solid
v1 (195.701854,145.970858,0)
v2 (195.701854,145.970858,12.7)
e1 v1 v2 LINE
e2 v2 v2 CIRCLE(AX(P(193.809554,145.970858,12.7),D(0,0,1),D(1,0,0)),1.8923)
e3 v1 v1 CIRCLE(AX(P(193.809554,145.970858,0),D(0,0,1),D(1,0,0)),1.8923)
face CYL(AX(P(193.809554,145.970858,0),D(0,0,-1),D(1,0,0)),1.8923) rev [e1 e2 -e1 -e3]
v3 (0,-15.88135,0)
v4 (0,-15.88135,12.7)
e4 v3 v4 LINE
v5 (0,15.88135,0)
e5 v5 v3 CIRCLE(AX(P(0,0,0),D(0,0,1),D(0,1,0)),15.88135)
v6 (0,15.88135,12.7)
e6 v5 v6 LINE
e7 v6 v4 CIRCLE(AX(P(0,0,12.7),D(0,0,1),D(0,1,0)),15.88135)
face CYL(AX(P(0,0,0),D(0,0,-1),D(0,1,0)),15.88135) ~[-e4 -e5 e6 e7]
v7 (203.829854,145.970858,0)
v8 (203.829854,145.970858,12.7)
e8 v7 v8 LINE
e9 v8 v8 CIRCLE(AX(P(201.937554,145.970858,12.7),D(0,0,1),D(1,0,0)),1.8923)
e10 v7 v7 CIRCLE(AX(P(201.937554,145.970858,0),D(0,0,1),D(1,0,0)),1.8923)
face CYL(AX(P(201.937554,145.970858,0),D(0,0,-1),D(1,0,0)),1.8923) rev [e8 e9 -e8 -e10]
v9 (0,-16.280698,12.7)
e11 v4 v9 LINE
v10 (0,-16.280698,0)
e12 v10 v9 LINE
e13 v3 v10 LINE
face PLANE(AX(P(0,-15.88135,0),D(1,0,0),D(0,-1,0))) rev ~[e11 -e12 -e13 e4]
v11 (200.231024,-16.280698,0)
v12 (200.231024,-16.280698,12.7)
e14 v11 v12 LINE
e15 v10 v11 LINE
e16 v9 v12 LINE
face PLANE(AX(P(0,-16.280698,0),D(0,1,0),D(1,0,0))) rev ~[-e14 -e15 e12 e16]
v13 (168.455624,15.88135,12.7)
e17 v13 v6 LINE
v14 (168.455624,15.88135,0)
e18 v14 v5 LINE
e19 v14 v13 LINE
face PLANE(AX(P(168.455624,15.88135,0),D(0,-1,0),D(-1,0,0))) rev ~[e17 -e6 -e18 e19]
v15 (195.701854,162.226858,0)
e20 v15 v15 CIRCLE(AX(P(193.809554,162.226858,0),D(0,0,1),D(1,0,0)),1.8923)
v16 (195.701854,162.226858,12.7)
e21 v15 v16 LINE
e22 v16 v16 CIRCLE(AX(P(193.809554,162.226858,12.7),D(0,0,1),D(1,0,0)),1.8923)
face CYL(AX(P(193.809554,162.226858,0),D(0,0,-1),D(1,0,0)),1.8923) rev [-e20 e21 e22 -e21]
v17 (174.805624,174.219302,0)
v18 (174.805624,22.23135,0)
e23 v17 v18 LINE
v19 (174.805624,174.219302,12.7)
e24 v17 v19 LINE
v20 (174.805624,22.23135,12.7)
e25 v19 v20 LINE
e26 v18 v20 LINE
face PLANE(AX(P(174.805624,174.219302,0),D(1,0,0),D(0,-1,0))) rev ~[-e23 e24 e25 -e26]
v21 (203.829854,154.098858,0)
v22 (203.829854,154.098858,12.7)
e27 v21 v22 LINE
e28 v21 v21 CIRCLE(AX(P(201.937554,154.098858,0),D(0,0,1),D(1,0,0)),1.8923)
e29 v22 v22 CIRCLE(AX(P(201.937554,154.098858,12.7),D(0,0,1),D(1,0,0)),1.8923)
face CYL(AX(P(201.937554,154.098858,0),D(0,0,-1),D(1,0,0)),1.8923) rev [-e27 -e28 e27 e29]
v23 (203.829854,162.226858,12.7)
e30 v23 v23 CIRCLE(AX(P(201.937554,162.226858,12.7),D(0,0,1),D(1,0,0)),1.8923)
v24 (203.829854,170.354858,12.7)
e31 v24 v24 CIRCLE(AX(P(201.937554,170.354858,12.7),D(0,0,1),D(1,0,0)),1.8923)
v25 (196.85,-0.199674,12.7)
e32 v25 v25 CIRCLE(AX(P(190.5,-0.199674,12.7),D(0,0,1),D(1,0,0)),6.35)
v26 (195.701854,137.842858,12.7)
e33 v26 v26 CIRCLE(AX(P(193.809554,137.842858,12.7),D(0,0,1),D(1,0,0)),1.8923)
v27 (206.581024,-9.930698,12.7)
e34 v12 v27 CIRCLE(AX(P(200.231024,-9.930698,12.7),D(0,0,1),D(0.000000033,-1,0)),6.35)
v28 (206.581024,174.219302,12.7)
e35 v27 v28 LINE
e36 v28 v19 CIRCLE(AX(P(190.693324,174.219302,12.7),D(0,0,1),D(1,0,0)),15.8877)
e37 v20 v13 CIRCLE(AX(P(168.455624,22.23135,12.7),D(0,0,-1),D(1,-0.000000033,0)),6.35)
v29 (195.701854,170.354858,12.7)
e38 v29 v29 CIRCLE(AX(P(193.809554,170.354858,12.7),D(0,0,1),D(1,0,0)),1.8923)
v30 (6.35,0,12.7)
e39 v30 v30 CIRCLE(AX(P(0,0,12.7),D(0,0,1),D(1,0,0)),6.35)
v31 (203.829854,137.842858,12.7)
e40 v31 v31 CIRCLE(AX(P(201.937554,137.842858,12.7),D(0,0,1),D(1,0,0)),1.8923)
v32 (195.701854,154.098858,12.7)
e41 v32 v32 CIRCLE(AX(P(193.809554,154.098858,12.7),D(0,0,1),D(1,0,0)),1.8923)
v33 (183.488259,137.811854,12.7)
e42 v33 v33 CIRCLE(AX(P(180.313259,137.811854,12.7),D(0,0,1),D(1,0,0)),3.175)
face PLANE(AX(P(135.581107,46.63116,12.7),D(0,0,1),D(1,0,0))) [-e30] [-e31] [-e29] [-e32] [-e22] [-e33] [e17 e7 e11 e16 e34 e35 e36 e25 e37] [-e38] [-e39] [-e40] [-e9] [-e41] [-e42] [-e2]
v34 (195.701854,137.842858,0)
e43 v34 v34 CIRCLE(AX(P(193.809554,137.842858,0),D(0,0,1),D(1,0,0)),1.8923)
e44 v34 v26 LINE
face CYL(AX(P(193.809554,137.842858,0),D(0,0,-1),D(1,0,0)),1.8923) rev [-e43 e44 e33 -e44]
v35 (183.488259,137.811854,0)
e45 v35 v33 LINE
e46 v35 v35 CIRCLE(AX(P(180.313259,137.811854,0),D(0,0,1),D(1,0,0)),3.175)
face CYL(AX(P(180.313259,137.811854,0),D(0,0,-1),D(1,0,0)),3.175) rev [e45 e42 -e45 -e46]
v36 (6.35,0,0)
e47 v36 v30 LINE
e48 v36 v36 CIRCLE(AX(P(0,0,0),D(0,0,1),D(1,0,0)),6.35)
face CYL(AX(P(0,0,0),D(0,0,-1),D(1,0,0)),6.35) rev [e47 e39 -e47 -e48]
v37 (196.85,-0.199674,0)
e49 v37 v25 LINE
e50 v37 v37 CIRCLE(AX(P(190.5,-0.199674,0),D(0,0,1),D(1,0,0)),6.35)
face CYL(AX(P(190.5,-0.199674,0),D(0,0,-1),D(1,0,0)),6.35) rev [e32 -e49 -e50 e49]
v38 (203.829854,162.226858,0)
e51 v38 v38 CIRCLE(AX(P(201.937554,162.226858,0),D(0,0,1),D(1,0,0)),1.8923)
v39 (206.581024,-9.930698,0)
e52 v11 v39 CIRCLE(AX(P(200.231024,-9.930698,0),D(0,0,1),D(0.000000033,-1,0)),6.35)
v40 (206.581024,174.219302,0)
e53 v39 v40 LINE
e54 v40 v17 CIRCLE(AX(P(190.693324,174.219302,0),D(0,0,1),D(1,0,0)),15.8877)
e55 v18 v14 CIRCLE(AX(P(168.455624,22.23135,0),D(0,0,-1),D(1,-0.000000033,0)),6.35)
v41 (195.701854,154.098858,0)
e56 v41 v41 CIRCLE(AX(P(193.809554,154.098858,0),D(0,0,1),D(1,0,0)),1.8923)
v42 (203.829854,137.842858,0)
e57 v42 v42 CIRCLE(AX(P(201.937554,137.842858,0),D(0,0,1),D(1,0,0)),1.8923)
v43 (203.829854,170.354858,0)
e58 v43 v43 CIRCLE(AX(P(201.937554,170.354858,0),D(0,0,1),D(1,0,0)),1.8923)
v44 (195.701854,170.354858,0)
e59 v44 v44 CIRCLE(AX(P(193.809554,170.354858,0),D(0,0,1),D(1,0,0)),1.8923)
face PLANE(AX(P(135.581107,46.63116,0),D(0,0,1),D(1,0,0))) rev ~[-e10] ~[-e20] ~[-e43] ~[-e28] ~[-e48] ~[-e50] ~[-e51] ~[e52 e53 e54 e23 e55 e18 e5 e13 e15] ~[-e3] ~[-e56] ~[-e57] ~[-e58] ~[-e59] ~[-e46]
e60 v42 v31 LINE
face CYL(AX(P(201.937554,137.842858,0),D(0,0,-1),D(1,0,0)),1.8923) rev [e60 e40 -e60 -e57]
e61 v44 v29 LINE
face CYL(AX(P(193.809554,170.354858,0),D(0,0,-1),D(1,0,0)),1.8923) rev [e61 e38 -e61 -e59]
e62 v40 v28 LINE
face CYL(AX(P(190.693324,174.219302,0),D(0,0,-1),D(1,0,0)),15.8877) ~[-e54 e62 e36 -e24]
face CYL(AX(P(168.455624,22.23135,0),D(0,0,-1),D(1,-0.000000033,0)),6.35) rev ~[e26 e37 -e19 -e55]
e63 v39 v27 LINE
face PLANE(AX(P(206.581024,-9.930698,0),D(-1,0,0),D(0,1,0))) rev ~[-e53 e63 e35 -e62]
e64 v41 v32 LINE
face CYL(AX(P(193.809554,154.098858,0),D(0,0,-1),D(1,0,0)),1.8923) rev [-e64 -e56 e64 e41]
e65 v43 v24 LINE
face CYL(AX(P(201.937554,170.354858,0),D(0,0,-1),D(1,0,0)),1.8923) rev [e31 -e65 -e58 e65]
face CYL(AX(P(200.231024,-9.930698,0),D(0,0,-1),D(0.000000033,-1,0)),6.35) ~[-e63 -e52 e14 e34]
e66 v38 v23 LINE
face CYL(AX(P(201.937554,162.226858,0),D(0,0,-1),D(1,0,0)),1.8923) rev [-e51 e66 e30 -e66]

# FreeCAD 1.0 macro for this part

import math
import FreeCAD as App
import Part
import Sketcher

V = App.Vector
Q = App.Units.Quantity

doc = App.newDocument("Part")
body = doc.addObject("PartDesign::Body", "Body")

# Sketch on XY plane
sketch1 = doc.addObject("Sketcher::SketchObject", "Sketch")
body.addObject(sketch1)
sketch1.AttachmentSupport = (doc.XY_Plane, [""])
sketch1.MapMode = "FlatFace"
sketch1.addGeometry([
    Part.LineSegment(V(168.46, 15.88, 0), V(0, 15.88, 0)),  # 0
    Part.ArcOfCircle(Part.Circle(V(0, 0, 0), V(0, 0, 1), 15.88), math.radians(90), math.radians(270)),  # 1
    Part.LineSegment(V(0, -15.88, 0), V(0, -16.28, 0)),  # 2
    Part.LineSegment(V(0, -16.28, 0), V(200.23, -16.28, 0)),  # 3
    Part.ArcOfCircle(Part.Circle(V(200.23, -9.93, 0), V(0, 0, 1), 6.35), math.radians(-90), math.radians(0)),  # 4
    Part.LineSegment(V(206.58, -9.93, 0), V(206.58, 174.22, 0)),  # 5
    Part.ArcOfCircle(Part.Circle(V(190.69, 174.22, 0), V(0, 0, 1), 15.89), math.radians(0), math.radians(180)),  # 6
    Part.LineSegment(V(174.81, 174.22, 0), V(174.81, 22.23, 0)),  # 7
    Part.ArcOfCircle(Part.Circle(V(168.46, 22.23, 0), V(0, 0, 1), 6.35), math.radians(-90), math.radians(0)),  # 8
    Part.Circle(V(0, 0, 0), V(0, 0, 1), 6.35),  # 9
    Part.Circle(V(190.5, -0.2, 0), V(0, 0, 1), 6.35),  # 10
    Part.Circle(V(180.31, 137.81, 0), V(0, 0, 1), 3.17),  # 11
    Part.Circle(V(193.81, 137.84, 0), V(0, 0, 1), 1.89),  # 12
    Part.Circle(V(201.94, 137.84, 0), V(0, 0, 1), 1.89),  # 13
    Part.Circle(V(193.81, 145.97, 0), V(0, 0, 1), 1.89),  # 14
    Part.Circle(V(201.94, 145.97, 0), V(0, 0, 1), 1.89),  # 15
    Part.Circle(V(193.81, 154.1, 0), V(0, 0, 1), 1.89),  # 16
    Part.Circle(V(201.94, 154.1, 0), V(0, 0, 1), 1.89),  # 17
    Part.Circle(V(193.81, 162.23, 0), V(0, 0, 1), 1.89),  # 18
    Part.Circle(V(201.94, 162.23, 0), V(0, 0, 1), 1.89),  # 19
    Part.Circle(V(193.81, 170.35, 0), V(0, 0, 1), 1.89),  # 20
    Part.Circle(V(201.94, 170.35, 0), V(0, 0, 1), 1.89),  # 21
], False)
sketch1.addConstraint([
    Sketcher.Constraint("Tangent", 0, 2, 1, 1),
    Sketcher.Constraint("Coincident", 1, 2, 2, 1),
    Sketcher.Constraint("Coincident", 2, 2, 3, 1),
    Sketcher.Constraint("Tangent", 3, 2, 4, 1),
    Sketcher.Constraint("Tangent", 4, 2, 5, 1),
    Sketcher.Constraint("Tangent", 5, 2, 6, 1),
    Sketcher.Constraint("Tangent", 6, 2, 7, 1),
    Sketcher.Constraint("Tangent", 7, 2, 8, 2),
    Sketcher.Constraint("Tangent", 8, 1, 0, 1),
    Sketcher.Constraint("Horizontal", 0),
    Sketcher.Constraint("Vertical", 2),
    Sketcher.Constraint("Horizontal", 3),
    Sketcher.Constraint("Vertical", 5),
    Sketcher.Constraint("Vertical", 7),
    Sketcher.Constraint("Coincident", 1, 3, -1, 1),
    Sketcher.Constraint("Coincident", 9, 3, -1, 1),
    Sketcher.Constraint("Equal", 4, 8),
    Sketcher.Constraint("Equal", 8, 9),
    Sketcher.Constraint("Equal", 9, 10),
    Sketcher.Constraint("Equal", 12, 13),
    Sketcher.Constraint("Equal", 13, 14),
    Sketcher.Constraint("Equal", 14, 15),
    Sketcher.Constraint("Equal", 15, 16),
    Sketcher.Constraint("Equal", 16, 17),
    Sketcher.Constraint("Equal", 17, 18),
    Sketcher.Constraint("Equal", 18, 19),
    Sketcher.Constraint("Equal", 19, 20),
    Sketcher.Constraint("Equal", 20, 21),
    Sketcher.Constraint("PointOnObject", 1, 2, -2),
    Sketcher.Constraint("Horizontal", 12, 3, 13, 3),
    Sketcher.Constraint("Horizontal", 14, 3, 15, 3),
    Sketcher.Constraint("Horizontal", 16, 3, 17, 3),
    Sketcher.Constraint("Horizontal", 18, 3, 19, 3),
    Sketcher.Constraint("Horizontal", 20, 3, 21, 3),
    Sketcher.Constraint("Vertical", 12, 3, 14, 3),
    Sketcher.Constraint("Vertical", 13, 3, 15, 3),
    Sketcher.Constraint("Vertical", 14, 3, 16, 3),
    Sketcher.Constraint("Vertical", 15, 3, 17, 3),
    Sketcher.Constraint("Vertical", 16, 3, 18, 3),
    Sketcher.Constraint("Vertical", 17, 3, 19, 3),
    Sketcher.Constraint("Vertical", 18, 3, 20, 3),
    Sketcher.Constraint("Vertical", 19, 3, 21, 3),
    Sketcher.Constraint("Diameter", 9, Q("0.5 in")),
    Sketcher.Constraint("Diameter", 11, Q("0.25 in")),
    Sketcher.Constraint("Diameter", 12, Q("0.149 in")),
    Sketcher.Constraint("DistanceY", 5, 1, 5, 2, Q("7.25 in")),
    Sketcher.Constraint("DistanceX", -1, 1, 10, 3, Q("7.5 in")),
    Sketcher.Constraint("Radius", 6, Q("0.6255 in")),
    Sketcher.Constraint("DistanceX", 12, 3, 13, 3, Q("0.32 in")),
    Sketcher.Constraint("DistanceY", 12, 3, 14, 3, Q("0.32 in")),
    Sketcher.Constraint("DistanceY", 14, 3, 16, 3, Q("0.32 in")),
    Sketcher.Constraint("DistanceY", 16, 3, 18, 3, Q("0.32 in")),
    Sketcher.Constraint("DistanceY", 18, 3, 20, 3, Q("0.32 in")),
    Sketcher.Constraint("Radius", 1, 15.88135),
    Sketcher.Constraint("DistanceY", 2, 2, 2, 1, 0.399348),
    Sketcher.Constraint("DistanceX", 0, 2, 0, 1, 168.455624),
    Sketcher.Constraint("DistanceX", -1, 1, 11, 3, 180.313259),
    Sketcher.Constraint("DistanceY", -1, 1, 12, 3, 137.842858),
    Sketcher.Constraint("DistanceY", 10, 3, 11, 3, 138.011528),
    Sketcher.Constraint("DistanceY", 4, 3, 11, 3, 147.742552),
    Sketcher.Constraint("DistanceX", 6, 3, 12, 3, 3.11623),
])
pad1 = doc.addObject("PartDesign::Pad", "Pad")
body.addObject(pad1)
pad1.Profile = sketch1
pad1.Length = Q("0.5 in")

doc.recompute()
